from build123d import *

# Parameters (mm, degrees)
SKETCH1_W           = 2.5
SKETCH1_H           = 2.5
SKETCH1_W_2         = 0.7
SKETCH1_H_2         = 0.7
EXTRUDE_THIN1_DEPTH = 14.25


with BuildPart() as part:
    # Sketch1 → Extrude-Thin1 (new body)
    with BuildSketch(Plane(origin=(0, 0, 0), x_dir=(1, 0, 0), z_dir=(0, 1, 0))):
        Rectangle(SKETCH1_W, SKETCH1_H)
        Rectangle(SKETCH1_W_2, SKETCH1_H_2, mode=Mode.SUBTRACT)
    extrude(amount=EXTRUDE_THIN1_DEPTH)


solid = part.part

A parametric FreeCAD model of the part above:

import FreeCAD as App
import Part
import Sketcher
from FreeCAD import Vector


def add_polygon(sketch, points):
    """Adds a closed chain of lines whose ends are joined by coincident constraints."""
    first, n = sketch.GeometryCount, len(points)
    for a, b in zip(points, points[1:] + points[:1]):
        sketch.addGeometry(Part.LineSegment(App.Vector(*a, 0), App.Vector(*b, 0)), False)
    for i in range(n):
        sketch.addConstraint(Sketcher.Constraint("Coincident", first + i, 2, first + (i + 1) % n, 1))

doc = App.newDocument("Part")
params = doc.addObject("Spreadsheet::Sheet", "Params")
for row, (alias, value) in enumerate([
    ("sketch1_width", "2.5 mm"),
    ("sketch1_width2", "0.7 mm"),
    ("pad1_length", "14.25 mm"),
], start=1):
    params.set(f"A{row}", alias)
    params.set(f"B{row}", "=" + value)
    params.setAlias(f"B{row}", alias)

body = doc.addObject("PartDesign::Body", "Body")

# Sketch on XZ plane
sketch1 = doc.addObject("Sketcher::SketchObject", "Sketch")
body.addObject(sketch1)
sketch1.AttachmentSupport = (doc.XZ_Plane, [""])
sketch1.MapMode = "FlatFace"
add_polygon(sketch1, [(-1.25, -1.25), (-1.25, 1.25), (1.25, 1.25), (1.25, -1.25)])  # lines 0-3
add_polygon(sketch1, [(0.35, 0.35), (-0.35, 0.35), (-0.35, -0.35), (0.35, -0.35)])  # lines 4-7
sketch1.addConstraint(Sketcher.Constraint("Vertical", 0))
sketch1.addConstraint(Sketcher.Constraint("Horizontal", 1))
sketch1.addConstraint(Sketcher.Constraint("Vertical", 2))
sketch1.addConstraint(Sketcher.Constraint("Horizontal", 3))
sketch1.addConstraint(Sketcher.Constraint("Horizontal", 4))
sketch1.addConstraint(Sketcher.Constraint("Vertical", 5))
sketch1.addConstraint(Sketcher.Constraint("Horizontal", 6))
sketch1.addConstraint(Sketcher.Constraint("Vertical", 7))
sketch1.addConstraint(Sketcher.Constraint("Symmetric", 0, 2, 2, 2, -1, 1))
sketch1.addConstraint(Sketcher.Constraint("Symmetric", 4, 2, 6, 2, -1, 1))
sketch1.addConstraint(Sketcher.Constraint("Equal", 3, 0))
sketch1.addConstraint(Sketcher.Constraint("Equal", 6, 5))
sketch1.addConstraint(Sketcher.Constraint("DistanceX", 1, 1, 1, 2, 2.5))
sketch1.addConstraint(Sketcher.Constraint("DistanceX", 4, 2, 4, 1, 0.7))
sketch1.setExpression("Constraints[20]", "Params.sketch1_width")
sketch1.setExpression("Constraints[21]", "Params.sketch1_width2")
pad1 = doc.addObject("PartDesign::Pad", "Pad")
body.addObject(pad1)
pad1.Profile = sketch1
pad1.setExpression("Length", "Params.pad1_length")
pad1.Reversed = True

doc.recompute()
